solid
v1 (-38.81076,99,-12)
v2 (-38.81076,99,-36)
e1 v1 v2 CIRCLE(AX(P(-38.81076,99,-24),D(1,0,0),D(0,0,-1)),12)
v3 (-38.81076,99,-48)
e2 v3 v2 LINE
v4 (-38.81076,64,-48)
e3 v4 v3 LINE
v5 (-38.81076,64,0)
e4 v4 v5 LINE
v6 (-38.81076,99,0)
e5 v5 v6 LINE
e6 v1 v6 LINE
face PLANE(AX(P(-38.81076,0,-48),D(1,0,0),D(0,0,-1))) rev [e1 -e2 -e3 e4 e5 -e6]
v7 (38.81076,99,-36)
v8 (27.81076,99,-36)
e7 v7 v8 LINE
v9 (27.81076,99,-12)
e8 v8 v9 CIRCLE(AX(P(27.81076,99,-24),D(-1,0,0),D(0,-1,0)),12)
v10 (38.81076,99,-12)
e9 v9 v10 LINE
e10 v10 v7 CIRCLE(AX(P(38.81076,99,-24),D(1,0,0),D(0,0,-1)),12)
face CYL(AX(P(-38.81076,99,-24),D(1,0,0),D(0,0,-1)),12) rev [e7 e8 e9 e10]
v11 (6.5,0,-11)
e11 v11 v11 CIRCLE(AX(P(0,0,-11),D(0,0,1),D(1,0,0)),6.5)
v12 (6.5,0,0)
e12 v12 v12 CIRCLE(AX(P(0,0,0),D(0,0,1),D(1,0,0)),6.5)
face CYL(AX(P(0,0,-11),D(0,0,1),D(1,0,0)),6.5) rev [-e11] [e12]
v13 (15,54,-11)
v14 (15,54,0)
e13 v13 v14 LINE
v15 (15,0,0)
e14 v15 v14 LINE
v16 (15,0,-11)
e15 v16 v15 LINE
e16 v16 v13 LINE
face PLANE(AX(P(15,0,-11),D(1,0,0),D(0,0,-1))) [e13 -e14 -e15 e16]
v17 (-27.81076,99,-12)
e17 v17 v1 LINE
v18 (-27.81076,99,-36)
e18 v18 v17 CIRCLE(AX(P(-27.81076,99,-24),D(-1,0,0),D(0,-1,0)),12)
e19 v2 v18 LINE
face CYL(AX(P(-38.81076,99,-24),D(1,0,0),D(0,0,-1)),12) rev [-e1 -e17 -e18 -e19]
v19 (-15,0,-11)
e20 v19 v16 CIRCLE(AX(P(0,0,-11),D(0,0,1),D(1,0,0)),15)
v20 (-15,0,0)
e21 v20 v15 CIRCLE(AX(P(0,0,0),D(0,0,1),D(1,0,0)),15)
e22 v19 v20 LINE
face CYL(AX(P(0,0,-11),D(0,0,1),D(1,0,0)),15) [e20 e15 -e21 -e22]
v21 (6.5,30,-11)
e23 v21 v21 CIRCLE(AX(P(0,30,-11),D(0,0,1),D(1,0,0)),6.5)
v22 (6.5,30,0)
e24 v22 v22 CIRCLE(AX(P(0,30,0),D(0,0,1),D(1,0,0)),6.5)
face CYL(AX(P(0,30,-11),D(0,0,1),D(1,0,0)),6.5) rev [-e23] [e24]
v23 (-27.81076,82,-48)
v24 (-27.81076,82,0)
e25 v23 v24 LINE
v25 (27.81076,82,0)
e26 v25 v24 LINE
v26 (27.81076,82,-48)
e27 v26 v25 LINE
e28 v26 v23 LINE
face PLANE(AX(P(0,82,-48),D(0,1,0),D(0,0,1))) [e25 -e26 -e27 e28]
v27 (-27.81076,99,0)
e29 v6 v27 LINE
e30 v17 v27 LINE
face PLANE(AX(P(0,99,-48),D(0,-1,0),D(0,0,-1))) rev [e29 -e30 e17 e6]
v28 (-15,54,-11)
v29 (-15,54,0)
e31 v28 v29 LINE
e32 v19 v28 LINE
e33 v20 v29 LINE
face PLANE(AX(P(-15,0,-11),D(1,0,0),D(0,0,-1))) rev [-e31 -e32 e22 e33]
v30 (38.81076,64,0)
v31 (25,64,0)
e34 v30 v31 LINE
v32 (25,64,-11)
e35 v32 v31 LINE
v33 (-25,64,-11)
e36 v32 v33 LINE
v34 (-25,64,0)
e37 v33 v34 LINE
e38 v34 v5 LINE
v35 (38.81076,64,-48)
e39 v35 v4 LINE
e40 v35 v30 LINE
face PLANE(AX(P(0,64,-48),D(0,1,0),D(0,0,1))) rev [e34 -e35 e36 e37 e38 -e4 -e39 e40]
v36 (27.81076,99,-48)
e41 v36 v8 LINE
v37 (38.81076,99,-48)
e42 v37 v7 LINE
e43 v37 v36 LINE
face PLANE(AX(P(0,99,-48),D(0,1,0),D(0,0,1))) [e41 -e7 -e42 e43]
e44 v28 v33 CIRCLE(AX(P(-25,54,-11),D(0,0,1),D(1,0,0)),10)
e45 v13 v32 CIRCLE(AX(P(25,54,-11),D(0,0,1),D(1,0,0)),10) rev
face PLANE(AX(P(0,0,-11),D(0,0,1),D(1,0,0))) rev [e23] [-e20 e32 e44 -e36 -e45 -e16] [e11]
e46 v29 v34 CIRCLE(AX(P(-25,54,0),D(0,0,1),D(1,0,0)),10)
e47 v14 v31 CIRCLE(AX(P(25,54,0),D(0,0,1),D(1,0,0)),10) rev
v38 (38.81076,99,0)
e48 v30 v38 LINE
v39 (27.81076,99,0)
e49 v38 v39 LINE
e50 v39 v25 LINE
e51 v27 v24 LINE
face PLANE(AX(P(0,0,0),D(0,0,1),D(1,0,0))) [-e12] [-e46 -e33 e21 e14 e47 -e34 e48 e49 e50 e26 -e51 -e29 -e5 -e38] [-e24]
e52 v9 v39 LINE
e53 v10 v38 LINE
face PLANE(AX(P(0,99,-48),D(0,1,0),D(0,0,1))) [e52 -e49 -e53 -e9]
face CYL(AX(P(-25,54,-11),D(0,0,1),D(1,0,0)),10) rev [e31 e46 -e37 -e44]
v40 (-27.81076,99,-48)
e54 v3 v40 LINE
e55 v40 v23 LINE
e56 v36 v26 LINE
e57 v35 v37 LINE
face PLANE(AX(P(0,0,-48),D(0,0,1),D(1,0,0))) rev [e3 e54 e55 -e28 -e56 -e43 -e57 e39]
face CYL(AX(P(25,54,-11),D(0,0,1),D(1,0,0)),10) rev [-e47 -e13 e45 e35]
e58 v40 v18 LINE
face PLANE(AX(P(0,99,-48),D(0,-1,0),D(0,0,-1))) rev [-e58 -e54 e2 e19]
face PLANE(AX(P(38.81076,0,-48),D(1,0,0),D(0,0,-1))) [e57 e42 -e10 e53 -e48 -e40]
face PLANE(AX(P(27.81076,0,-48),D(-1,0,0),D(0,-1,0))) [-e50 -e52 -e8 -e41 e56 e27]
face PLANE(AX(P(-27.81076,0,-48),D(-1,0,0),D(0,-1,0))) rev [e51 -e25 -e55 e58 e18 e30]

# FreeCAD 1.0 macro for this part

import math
import FreeCAD as App
import Part
import Sketcher

V = App.Vector
Q = App.Units.Quantity


def add_polygon(sketch, points):
    """Adds a closed chain of lines whose ends are joined by coincident constraints."""
    first, n = sketch.GeometryCount, len(points)
    for a, b in zip(points, points[1:] + points[:1]):
        sketch.addGeometry(Part.LineSegment(App.Vector(*a, 0), App.Vector(*b, 0)), False)
    for i in range(n):
        sketch.addConstraint(Sketcher.Constraint("Coincident", first + i, 2, first + (i + 1) % n, 1))

doc = App.newDocument("Part")
params = doc.addObject("Spreadsheet::Sheet", "Params")
for row, (alias, value) in enumerate([
    ("sketch1_diameter", "13 mm"),
    ("sketch1_radius", "10 mm"),
    ("sketch1_radius2", "15 mm"),
    ("sketch1_height", "54 mm"),
    ("pad1_length", "11 mm"),
    ("sketch2_width", "11 mm"),
    ("sketch2_height", "17 mm"),
    ("sketch2_height2", "35 mm"),
    ("pad2_length", "48 mm"),
    ("sketch3_diameter", "24 mm"),
], start=1):
    params.set(f"A{row}", alias)
    params.set(f"B{row}", "=" + value)
    params.setAlias(f"B{row}", alias)

body = doc.addObject("PartDesign::Body", "Body")

# Sketch on XY plane
sketch1 = body.newObject("Sketcher::SketchObject", "Sketch")
sketch1.AttachmentSupport = (doc.getObject("XY_Plane"), [""])
sketch1.MapMode = "FlatFace"
sketch1.addGeometry(Part.LineSegment(V(15, 0, 0), V(15, 54, 0)), False)
sketch1.addGeometry(Part.ArcOfCircle(Part.Circle(V(25, 54, 0), V(0, 0, 1), 10), math.radians(90), math.radians(180)), False)
sketch1.addGeometry(Part.LineSegment(V(25, 64, 0), V(-25, 64, 0)), False)
sketch1.addGeometry(Part.ArcOfCircle(Part.Circle(V(-25, 54, 0), V(0, 0, 1), 10), math.radians(0), math.radians(90)), False)
sketch1.addGeometry(Part.LineSegment(V(-15, 54, 0), V(-15, 0, 0)), False)
sketch1.addGeometry(Part.ArcOfCircle(Part.Circle(V(0, 0, 0), V(0, 0, 1), 15), math.radians(180), math.radians(360)), False)
sketch1.addGeometry(Part.Circle(V(0, 0, 0), V(0, 0, 1), 6), False)
sketch1.addGeometry(Part.Circle(V(0, 30, 0), V(0, 0, 1), 6), False)
sketch1.addConstraint(Sketcher.Constraint("Tangent", 0, 2, 1, 2))
sketch1.addConstraint(Sketcher.Constraint("Tangent", 1, 1, 2, 1))
sketch1.addConstraint(Sketcher.Constraint("Tangent", 2, 2, 3, 2))
sketch1.addConstraint(Sketcher.Constraint("Tangent", 3, 1, 4, 1))
sketch1.addConstraint(Sketcher.Constraint("Tangent", 4, 2, 5, 1))
sketch1.addConstraint(Sketcher.Constraint("Tangent", 5, 2, 0, 1))
sketch1.addConstraint(Sketcher.Constraint("Vertical", 0))
sketch1.addConstraint(Sketcher.Constraint("Horizontal", 2))
sketch1.addConstraint(Sketcher.Constraint("Vertical", 4))
sketch1.addConstraint(Sketcher.Constraint("Coincident", 5, 3, -1, 1))
sketch1.addConstraint(Sketcher.Constraint("Coincident", 6, 3, -1, 1))
sketch1.addConstraint(Sketcher.Constraint("Equal", 1, 3))
sketch1.addConstraint(Sketcher.Constraint("Equal", 6, 7))
sketch1.addConstraint(Sketcher.Constraint("PointOnObject", 7, 3, -2))
sketch1.addConstraint(Sketcher.Constraint("Diameter", 6, Q("13 mm")))
sketch1.addConstraint(Sketcher.Constraint("Radius", 1, Q("10 mm")))
sketch1.addConstraint(Sketcher.Constraint("Radius", 5, Q("15 mm")))
sketch1.addConstraint(Sketcher.Constraint("DistanceY", 0, 1, 0, 2, Q("54 mm")))
sketch1.addConstraint(Sketcher.Constraint("DistanceY", -1, 1, 7, 3, Q("30 mm")))
sketch1.setExpression("Constraints[14]", "Params.sketch1_diameter")
sketch1.setExpression("Constraints[15]", "Params.sketch1_radius")
sketch1.setExpression("Constraints[16]", "Params.sketch1_radius2")
sketch1.setExpression("Constraints[17]", "Params.sketch1_height")
pad1 = body.newObject("PartDesign::Pad", "Pad")
pad1.Profile = sketch1
pad1.setExpression("Length", "Params.pad1_length")
pad1.Reversed = True

# Sketch on XY plane
sketch2 = body.newObject("Sketcher::SketchObject", "Sketch001")
sketch2.AttachmentSupport = (doc.getObject("XY_Plane"), [""])
sketch2.MapMode = "FlatFace"
add_polygon(sketch2, [(28, 82), (-28, 82), (-28, 99), (-39, 99), (-39, 64), (39, 64), (39, 99), (28, 99)])  # lines 0-7
sketch2.addConstraint(Sketcher.Constraint("Horizontal", 0))
sketch2.addConstraint(Sketcher.Constraint("Vertical", 1))
sketch2.addConstraint(Sketcher.Constraint("Horizontal", 2))
sketch2.addConstraint(Sketcher.Constraint("Vertical", 3))
sketch2.addConstraint(Sketcher.Constraint("Horizontal", 4))
sketch2.addConstraint(Sketcher.Constraint("Vertical", 5))
sketch2.addConstraint(Sketcher.Constraint("Horizontal", 6))
sketch2.addConstraint(Sketcher.Constraint("Vertical", 7))
sketch2.addConstraint(Sketcher.Constraint("Symmetric", 2, 2, 5, 2, -2))
sketch2.addConstraint(Sketcher.Constraint("Equal", 2, 6))
sketch2.addConstraint(Sketcher.Constraint("DistanceX", 2, 2, 2, 1, Q("11 mm")))
sketch2.addConstraint(Sketcher.Constraint("DistanceY", 1, 1, 1, 2, Q("17 mm")))
sketch2.addConstraint(Sketcher.Constraint("DistanceY", 3, 2, 3, 1, Q("35 mm")))
sketch2.addConstraint(Sketcher.Constraint("DistanceY", -1, 1, 0, 2, Q("82 mm")))
sketch2.addConstraint(Sketcher.Constraint("DistanceX", 0, 2, 0, 1, Q("55.62152 mm")))
sketch2.setExpression("Constraints[18]", "Params.sketch2_width")
sketch2.setExpression("Constraints[19]", "Params.sketch2_height")
sketch2.setExpression("Constraints[20]", "Params.sketch2_height2")
pad2 = body.newObject("PartDesign::Pad", "Pad001")
pad2.Profile = sketch2
pad2.setExpression("Length", "Params.pad2_length")
pad2.Reversed = True

# Sketch on YZ plane
sketch3 = body.newObject("Sketcher::SketchObject", "Sketch002")
sketch3.AttachmentSupport = (doc.getObject("YZ_Plane"), [""])
sketch3.MapMode = "FlatFace"
sketch3.AttachmentOffset = App.Placement(V(0, 0, 38.81076), App.Rotation())
sketch3.addGeometry(Part.Circle(V(99, -24, 0), V(0, 0, 1), 12), False)
sketch3.addConstraint(Sketcher.Constraint("Diameter", 0, Q("24 mm")))
sketch3.addConstraint(Sketcher.Constraint("DistanceX", -1, 1, 0, 3, Q("99 mm")))
sketch3.addConstraint(Sketcher.Constraint("DistanceY", 0, 3, -1, 1, Q("24 mm")))
sketch3.setExpression("Constraints[0]", "Params.sketch3_diameter")
pocket1 = body.newObject("PartDesign::Pocket", "Pocket")
pocket1.Profile = sketch3
pocket1.Type = "ThroughAll"

doc.recompute()
